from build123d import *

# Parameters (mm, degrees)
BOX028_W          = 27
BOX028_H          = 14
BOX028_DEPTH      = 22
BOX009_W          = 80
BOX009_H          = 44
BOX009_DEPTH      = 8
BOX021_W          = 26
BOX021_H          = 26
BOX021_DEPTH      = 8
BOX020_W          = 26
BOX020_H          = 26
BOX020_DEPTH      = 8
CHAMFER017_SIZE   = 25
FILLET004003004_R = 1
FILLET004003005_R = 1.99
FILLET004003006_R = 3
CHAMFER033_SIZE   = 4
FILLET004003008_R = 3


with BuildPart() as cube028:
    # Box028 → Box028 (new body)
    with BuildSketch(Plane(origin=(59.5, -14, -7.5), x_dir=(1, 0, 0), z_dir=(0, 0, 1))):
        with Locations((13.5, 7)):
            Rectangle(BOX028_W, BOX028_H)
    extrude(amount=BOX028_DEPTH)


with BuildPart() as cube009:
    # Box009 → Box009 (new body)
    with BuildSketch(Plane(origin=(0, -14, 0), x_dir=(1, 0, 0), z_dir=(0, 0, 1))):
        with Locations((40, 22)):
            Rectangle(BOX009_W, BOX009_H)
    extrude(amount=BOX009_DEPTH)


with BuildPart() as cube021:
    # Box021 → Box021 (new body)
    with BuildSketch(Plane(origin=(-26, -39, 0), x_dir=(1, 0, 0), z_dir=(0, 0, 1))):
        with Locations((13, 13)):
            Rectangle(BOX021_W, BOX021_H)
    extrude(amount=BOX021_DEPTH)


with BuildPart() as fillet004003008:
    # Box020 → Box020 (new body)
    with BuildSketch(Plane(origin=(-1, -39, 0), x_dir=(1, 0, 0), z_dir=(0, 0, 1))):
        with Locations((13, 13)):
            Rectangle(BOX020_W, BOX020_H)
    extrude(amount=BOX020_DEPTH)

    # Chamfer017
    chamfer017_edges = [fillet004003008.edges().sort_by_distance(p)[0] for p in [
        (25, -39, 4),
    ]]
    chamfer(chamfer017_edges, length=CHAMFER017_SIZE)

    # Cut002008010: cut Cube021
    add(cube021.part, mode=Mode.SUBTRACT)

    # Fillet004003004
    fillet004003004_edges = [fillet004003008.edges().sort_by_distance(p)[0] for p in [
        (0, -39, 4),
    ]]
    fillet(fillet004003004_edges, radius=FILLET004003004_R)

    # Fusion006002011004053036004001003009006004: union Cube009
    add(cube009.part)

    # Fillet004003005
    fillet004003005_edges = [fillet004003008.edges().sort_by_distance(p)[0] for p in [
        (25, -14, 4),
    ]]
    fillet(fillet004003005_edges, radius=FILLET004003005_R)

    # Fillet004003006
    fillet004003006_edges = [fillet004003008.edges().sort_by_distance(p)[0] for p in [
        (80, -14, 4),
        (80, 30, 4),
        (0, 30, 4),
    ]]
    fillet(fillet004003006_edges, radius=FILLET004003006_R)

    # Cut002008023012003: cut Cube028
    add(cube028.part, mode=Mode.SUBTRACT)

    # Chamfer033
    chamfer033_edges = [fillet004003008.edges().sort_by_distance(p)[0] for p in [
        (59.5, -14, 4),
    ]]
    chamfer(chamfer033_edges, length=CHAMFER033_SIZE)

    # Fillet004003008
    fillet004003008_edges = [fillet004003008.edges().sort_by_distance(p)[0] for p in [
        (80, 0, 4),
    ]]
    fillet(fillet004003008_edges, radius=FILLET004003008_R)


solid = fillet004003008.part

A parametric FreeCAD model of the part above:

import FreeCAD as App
import Part
import Sketcher


def edges_at(feature, points):
    """Names of the edges that pass closest to the given points."""
    edges = feature.Shape.Edges
    near = lambda p: min(range(len(edges)), key=lambda i: edges[i].distToShape(Part.Vertex(*p))[0])
    return sorted({f"Edge{near(p) + 1}" for p in points})


def add_polygon(sketch, points):
    """Adds a closed chain of lines whose ends are joined by coincident constraints."""
    first, n = sketch.GeometryCount, len(points)
    for a, b in zip(points, points[1:] + points[:1]):
        sketch.addGeometry(Part.LineSegment(App.Vector(*a, 0), App.Vector(*b, 0)), False)
    for i in range(n):
        sketch.addConstraint(Sketcher.Constraint("Coincident", first + i, 2, first + (i + 1) % n, 1))

doc = App.newDocument("Part")
params = doc.addObject("Spreadsheet::Sheet", "Params")
for row, (alias, value) in enumerate([
    ("sketch1_width", "27 mm"),
    ("sketch1_height", "14 mm"),
    ("pad1_length", "22 mm"),
    ("sketch2_width", "80 mm"),
    ("sketch2_height", "44 mm"),
    ("pad2_length", "8 mm"),
    ("sketch3_width", "26 mm"),
    ("pad3_length", "8 mm"),
    ("sketch4_width", "26 mm"),
    ("pad4_length", "8 mm"),
    ("chamfer_size", "25 mm"),
    ("fillet_radius", "1 mm"),
    ("fillet2_radius", "1.99 mm"),
    ("fillet3_radius", "3 mm"),
    ("chamfer2_size", "4 mm"),
    ("fillet4_radius", "3 mm"),
], start=1):
    params.set(f"A{row}", alias)
    params.set(f"B{row}", "=" + value)
    params.setAlias(f"B{row}", alias)

body = doc.addObject("PartDesign::Body", "Body")

# Sketch on XY plane
sketch1 = doc.addObject("Sketcher::SketchObject", "Sketch")
body.addObject(sketch1)
sketch1.AttachmentSupport = (doc.XY_Plane, [""])
sketch1.MapMode = "FlatFace"
sketch1.AttachmentOffset = App.Placement(App.Vector(0, 0, -7.5), App.Rotation())
add_polygon(sketch1, [(59.5, 0), (59.5, -14), (86.5, -14), (86.5, 0)])  # lines 0-3
sketch1.addConstraint([
    Sketcher.Constraint("Vertical", 0),
    Sketcher.Constraint("Horizontal", 1),
    Sketcher.Constraint("Vertical", 2),
    Sketcher.Constraint("Horizontal", 3),
    Sketcher.Constraint("PointOnObject", 2, 2, -1),
    Sketcher.Constraint("DistanceX", 1, 1, 1, 2, 27.0),
    Sketcher.Constraint("DistanceY", 0, 2, 0, 1, 14.0),
    Sketcher.Constraint("DistanceX", -1, 1, 0, 2, 59.5),
])
sketch1.setExpression("Constraints[9]", "Params.sketch1_width")
sketch1.setExpression("Constraints[10]", "Params.sketch1_height")
pad1 = doc.addObject("PartDesign::Pad", "Pad")
body.addObject(pad1)
pad1.Profile = sketch1
pad1.setExpression("Length", "Params.pad1_length")
body2 = doc.addObject("PartDesign::Body", "Body001")

# Sketch on XY plane
sketch2 = doc.addObject("Sketcher::SketchObject", "Sketch001")
body2.addObject(sketch2)
sketch2.AttachmentSupport = (doc.getObject("XY_Plane001"), [""])
sketch2.MapMode = "FlatFace"
add_polygon(sketch2, [(0, 30), (0, -14), (80, -14), (80, 30)])  # lines 0-3
sketch2.addConstraint([
    Sketcher.Constraint("Vertical", 0),
    Sketcher.Constraint("Horizontal", 1),
    Sketcher.Constraint("Vertical", 2),
    Sketcher.Constraint("Horizontal", 3),
    Sketcher.Constraint("PointOnObject", 0, 2, -2),
    Sketcher.Constraint("DistanceX", 1, 1, 1, 2, 80.0),
    Sketcher.Constraint("DistanceY", 0, 2, 0, 1, 44.0),
    Sketcher.Constraint("DistanceY", 0, 2, -1, 1, 14.0),
])
sketch2.setExpression("Constraints[9]", "Params.sketch2_width")
sketch2.setExpression("Constraints[10]", "Params.sketch2_height")
pad2 = doc.addObject("PartDesign::Pad", "Pad001")
body2.addObject(pad2)
pad2.Profile = sketch2
pad2.setExpression("Length", "Params.pad2_length")
body3 = doc.addObject("PartDesign::Body", "Body002")

# Sketch on XY plane
sketch3 = doc.addObject("Sketcher::SketchObject", "Sketch002")
body3.addObject(sketch3)
sketch3.AttachmentSupport = (doc.getObject("XY_Plane002"), [""])
sketch3.MapMode = "FlatFace"
add_polygon(sketch3, [(-26, -13), (-26, -39), (0, -39), (0, -13)])  # lines 0-3
sketch3.addConstraint([
    Sketcher.Constraint("Vertical", 0),
    Sketcher.Constraint("Horizontal", 1),
    Sketcher.Constraint("Vertical", 2),
    Sketcher.Constraint("Horizontal", 3),
    Sketcher.Constraint("PointOnObject", 1, 2, -2),
    Sketcher.Constraint("Equal", 3, 0),
    Sketcher.Constraint("DistanceX", 1, 1, 1, 2, 26.0),
    Sketcher.Constraint("DistanceY", 0, 2, -1, 1, 39.0),
])
sketch3.setExpression("Constraints[10]", "Params.sketch3_width")
pad3 = doc.addObject("PartDesign::Pad", "Pad002")
body3.addObject(pad3)
pad3.Profile = sketch3
pad3.setExpression("Length", "Params.pad3_length")
body4 = doc.addObject("PartDesign::Body", "Body003")

# Sketch on XY plane
sketch4 = doc.addObject("Sketcher::SketchObject", "Sketch003")
body4.addObject(sketch4)
sketch4.AttachmentSupport = (doc.getObject("XY_Plane003"), [""])
sketch4.MapMode = "FlatFace"
add_polygon(sketch4, [(-1, -13), (-1, -39), (25, -39), (25, -13)])  # lines 0-3
sketch4.addConstraint([
    Sketcher.Constraint("Vertical", 0),
    Sketcher.Constraint("Horizontal", 1),
    Sketcher.Constraint("Vertical", 2),
    Sketcher.Constraint("Horizontal", 3),
    Sketcher.Constraint("Equal", 3, 0),
    Sketcher.Constraint("DistanceX", 1, 1, 1, 2, 26.0),
    Sketcher.Constraint("DistanceX", 0, 2, -1, 1, 1.0),
    Sketcher.Constraint("DistanceY", 0, 2, -1, 1, 39.0),
])
sketch4.setExpression("Constraints[9]", "Params.sketch4_width")
pad4 = doc.addObject("PartDesign::Pad", "Pad003")
body4.addObject(pad4)
pad4.Profile = sketch4
pad4.setExpression("Length", "Params.pad4_length")
doc.recompute()

chamfer = doc.addObject("PartDesign::Chamfer", "Chamfer")
body4.addObject(chamfer)
chamfer.Base = (pad4, edges_at(pad4, [(25, -39, 4)]))
chamfer.setExpression("Size", "Params.chamfer_size")
doc.recompute()

boolean = doc.addObject("PartDesign::Boolean", "Boolean")
body4.addObject(boolean)
boolean.Type = "Cut"
boolean.addObjects([body3])
doc.recompute()

fillet = doc.addObject("PartDesign::Fillet", "Fillet")
body4.addObject(fillet)
fillet.Base = (boolean, edges_at(boolean, [(0, -39, 4)]))
fillet.setExpression("Radius", "Params.fillet_radius")
doc.recompute()

boolean2 = doc.addObject("PartDesign::Boolean", "Boolean001")
body4.addObject(boolean2)
boolean2.Type = "Fuse"
boolean2.addObjects([body2])
doc.recompute()

fillet2 = doc.addObject("PartDesign::Fillet", "Fillet001")
body4.addObject(fillet2)
fillet2.Base = (boolean2, edges_at(boolean2, [(25, -14, 4)]))
fillet2.setExpression("Radius", "Params.fillet2_radius")
doc.recompute()

fillet3 = doc.addObject("PartDesign::Fillet", "Fillet002")
body4.addObject(fillet3)
fillet3.Base = (fillet2, edges_at(fillet2, [(80, -14, 4), (80, 30, 4), (0, 30, 4)]))
fillet3.setExpression("Radius", "Params.fillet3_radius")
doc.recompute()

boolean3 = doc.addObject("PartDesign::Boolean", "Boolean002")
body4.addObject(boolean3)
boolean3.Type = "Cut"
boolean3.addObjects([body])
doc.recompute()

chamfer2 = doc.addObject("PartDesign::Chamfer", "Chamfer001")
body4.addObject(chamfer2)
chamfer2.Base = (boolean3, edges_at(boolean3, [(59.5, -14, 4)]))
chamfer2.setExpression("Size", "Params.chamfer2_size")
doc.recompute()

fillet4 = doc.addObject("PartDesign::Fillet", "Fillet003")
body4.addObject(fillet4)
fillet4.Base = (chamfer2, edges_at(chamfer2, [(80, 0, 4)]))
fillet4.setExpression("Radius", "Params.fillet4_radius")

doc.recompute()
